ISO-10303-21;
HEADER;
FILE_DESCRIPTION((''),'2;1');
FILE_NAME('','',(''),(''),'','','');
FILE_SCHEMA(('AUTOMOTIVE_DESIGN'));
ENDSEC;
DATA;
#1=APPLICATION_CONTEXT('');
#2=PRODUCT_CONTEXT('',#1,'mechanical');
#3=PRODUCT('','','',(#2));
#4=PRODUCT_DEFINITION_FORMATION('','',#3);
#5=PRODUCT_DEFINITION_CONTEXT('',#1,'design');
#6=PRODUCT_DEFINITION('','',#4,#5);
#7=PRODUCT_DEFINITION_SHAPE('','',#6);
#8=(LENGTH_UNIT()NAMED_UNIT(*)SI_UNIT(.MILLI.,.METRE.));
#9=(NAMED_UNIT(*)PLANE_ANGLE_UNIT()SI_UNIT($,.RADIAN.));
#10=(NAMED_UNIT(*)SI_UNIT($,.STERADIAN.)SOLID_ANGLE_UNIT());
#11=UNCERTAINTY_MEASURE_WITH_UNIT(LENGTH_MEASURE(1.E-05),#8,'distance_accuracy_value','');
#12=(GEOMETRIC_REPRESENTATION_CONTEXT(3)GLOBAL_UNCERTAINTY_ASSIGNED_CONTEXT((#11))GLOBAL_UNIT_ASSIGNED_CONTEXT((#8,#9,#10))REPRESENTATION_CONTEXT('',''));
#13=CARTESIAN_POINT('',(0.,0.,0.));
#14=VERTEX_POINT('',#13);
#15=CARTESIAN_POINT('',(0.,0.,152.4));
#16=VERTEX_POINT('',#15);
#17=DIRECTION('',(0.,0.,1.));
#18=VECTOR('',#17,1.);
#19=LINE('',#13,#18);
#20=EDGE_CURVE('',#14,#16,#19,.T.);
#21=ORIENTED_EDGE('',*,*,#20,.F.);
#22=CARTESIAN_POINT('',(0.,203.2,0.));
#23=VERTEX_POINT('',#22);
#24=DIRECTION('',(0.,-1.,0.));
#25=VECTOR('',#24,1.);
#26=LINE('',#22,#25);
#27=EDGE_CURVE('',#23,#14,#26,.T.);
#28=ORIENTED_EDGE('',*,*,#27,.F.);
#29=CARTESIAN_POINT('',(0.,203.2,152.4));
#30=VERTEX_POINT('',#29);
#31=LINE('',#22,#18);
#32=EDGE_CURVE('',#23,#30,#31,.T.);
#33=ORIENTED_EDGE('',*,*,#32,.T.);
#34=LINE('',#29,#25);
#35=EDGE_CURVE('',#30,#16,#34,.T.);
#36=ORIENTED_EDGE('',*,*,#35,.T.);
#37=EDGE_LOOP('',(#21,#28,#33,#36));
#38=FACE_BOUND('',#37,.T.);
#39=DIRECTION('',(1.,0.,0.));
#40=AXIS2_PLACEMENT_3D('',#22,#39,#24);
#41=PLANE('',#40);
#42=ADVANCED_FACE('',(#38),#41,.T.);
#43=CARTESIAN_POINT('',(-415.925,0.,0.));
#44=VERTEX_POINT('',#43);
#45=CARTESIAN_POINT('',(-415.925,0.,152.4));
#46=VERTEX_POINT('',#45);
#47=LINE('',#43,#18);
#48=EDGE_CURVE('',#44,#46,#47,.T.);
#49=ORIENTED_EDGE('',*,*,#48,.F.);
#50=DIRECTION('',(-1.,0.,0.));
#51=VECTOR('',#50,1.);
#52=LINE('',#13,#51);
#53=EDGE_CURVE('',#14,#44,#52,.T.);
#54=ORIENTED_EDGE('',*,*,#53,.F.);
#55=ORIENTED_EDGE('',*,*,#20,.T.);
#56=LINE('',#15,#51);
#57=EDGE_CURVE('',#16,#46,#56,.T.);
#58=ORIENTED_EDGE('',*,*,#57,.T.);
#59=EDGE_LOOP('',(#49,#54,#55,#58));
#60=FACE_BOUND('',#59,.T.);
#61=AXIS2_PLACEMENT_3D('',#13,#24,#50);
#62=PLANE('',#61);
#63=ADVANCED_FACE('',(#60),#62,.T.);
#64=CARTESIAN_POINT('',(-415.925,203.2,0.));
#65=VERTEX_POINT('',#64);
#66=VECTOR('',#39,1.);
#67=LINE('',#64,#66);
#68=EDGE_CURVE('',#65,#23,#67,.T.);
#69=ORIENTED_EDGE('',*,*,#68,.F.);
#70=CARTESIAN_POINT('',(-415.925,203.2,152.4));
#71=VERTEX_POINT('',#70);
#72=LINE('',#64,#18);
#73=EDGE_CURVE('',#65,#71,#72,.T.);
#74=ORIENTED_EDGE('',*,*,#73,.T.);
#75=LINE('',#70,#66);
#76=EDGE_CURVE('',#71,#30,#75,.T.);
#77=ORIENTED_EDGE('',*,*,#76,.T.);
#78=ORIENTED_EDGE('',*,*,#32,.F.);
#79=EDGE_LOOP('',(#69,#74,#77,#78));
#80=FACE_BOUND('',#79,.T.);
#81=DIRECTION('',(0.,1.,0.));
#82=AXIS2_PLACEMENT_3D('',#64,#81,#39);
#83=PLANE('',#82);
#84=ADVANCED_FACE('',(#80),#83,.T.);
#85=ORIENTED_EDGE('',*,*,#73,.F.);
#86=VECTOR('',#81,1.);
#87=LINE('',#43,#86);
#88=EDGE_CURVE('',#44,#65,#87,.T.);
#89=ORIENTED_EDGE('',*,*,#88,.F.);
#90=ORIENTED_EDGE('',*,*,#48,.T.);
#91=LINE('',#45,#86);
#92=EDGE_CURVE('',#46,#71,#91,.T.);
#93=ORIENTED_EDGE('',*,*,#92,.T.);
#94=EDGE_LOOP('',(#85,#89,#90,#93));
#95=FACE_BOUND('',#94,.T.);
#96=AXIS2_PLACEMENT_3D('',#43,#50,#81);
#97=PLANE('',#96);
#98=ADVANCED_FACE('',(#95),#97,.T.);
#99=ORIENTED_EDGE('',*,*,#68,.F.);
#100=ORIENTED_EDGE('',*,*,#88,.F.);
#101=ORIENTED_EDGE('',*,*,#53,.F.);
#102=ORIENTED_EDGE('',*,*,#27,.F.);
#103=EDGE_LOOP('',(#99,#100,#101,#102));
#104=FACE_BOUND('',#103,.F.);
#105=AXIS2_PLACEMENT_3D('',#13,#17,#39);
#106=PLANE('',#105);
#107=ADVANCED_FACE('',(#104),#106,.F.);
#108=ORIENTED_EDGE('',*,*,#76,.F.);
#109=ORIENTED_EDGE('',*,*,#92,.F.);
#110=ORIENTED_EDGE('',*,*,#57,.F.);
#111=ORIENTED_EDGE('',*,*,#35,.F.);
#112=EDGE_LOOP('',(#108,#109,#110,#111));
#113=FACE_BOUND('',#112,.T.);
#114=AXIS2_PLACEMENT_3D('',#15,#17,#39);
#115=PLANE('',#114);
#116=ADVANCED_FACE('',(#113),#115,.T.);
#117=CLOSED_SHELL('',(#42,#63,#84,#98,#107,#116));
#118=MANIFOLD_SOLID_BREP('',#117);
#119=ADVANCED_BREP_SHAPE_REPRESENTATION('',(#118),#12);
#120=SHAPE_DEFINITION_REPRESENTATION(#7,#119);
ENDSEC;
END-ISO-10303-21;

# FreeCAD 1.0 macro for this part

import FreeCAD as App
import Part
import Sketcher

V = App.Vector
Q = App.Units.Quantity


def add_polygon(sketch, points):
    """Adds a closed chain of lines whose ends are joined by coincident constraints."""
    first, n = sketch.GeometryCount, len(points)
    for a, b in zip(points, points[1:] + points[:1]):
        sketch.addGeometry(Part.LineSegment(App.Vector(*a, 0), App.Vector(*b, 0)), False)
    for i in range(n):
        sketch.addConstraint(Sketcher.Constraint("Coincident", first + i, 2, first + (i + 1) % n, 1))

doc = App.newDocument("Part")
body = doc.addObject("PartDesign::Body", "Body")

# Sketch on XY plane
sketch1 = body.newObject("Sketcher::SketchObject", "Sketch")
sketch1.AttachmentSupport = (doc.getObject("XY_Plane"), [""])
sketch1.MapMode = "FlatFace"
add_polygon(sketch1, [(-415.925, 0), (0, 0), (0, 203.2), (-415.925, 203.2)])  # lines 0-3
sketch1.addConstraint([
    Sketcher.Constraint("Horizontal", 0),
    Sketcher.Constraint("Vertical", 1),
    Sketcher.Constraint("Horizontal", 2),
    Sketcher.Constraint("Vertical", 3),
    Sketcher.Constraint("Coincident", 0, 2, -1, 1),
    Sketcher.Constraint("DistanceY", 1, 1, 1, 2, Q("8 in")),
    Sketcher.Constraint("DistanceX", 0, 1, 0, 2, Q("16.375 in")),
])
pad1 = body.newObject("PartDesign::Pad", "Pad")
pad1.Profile = sketch1
pad1.Length = Q("6 in")

doc.recompute()
